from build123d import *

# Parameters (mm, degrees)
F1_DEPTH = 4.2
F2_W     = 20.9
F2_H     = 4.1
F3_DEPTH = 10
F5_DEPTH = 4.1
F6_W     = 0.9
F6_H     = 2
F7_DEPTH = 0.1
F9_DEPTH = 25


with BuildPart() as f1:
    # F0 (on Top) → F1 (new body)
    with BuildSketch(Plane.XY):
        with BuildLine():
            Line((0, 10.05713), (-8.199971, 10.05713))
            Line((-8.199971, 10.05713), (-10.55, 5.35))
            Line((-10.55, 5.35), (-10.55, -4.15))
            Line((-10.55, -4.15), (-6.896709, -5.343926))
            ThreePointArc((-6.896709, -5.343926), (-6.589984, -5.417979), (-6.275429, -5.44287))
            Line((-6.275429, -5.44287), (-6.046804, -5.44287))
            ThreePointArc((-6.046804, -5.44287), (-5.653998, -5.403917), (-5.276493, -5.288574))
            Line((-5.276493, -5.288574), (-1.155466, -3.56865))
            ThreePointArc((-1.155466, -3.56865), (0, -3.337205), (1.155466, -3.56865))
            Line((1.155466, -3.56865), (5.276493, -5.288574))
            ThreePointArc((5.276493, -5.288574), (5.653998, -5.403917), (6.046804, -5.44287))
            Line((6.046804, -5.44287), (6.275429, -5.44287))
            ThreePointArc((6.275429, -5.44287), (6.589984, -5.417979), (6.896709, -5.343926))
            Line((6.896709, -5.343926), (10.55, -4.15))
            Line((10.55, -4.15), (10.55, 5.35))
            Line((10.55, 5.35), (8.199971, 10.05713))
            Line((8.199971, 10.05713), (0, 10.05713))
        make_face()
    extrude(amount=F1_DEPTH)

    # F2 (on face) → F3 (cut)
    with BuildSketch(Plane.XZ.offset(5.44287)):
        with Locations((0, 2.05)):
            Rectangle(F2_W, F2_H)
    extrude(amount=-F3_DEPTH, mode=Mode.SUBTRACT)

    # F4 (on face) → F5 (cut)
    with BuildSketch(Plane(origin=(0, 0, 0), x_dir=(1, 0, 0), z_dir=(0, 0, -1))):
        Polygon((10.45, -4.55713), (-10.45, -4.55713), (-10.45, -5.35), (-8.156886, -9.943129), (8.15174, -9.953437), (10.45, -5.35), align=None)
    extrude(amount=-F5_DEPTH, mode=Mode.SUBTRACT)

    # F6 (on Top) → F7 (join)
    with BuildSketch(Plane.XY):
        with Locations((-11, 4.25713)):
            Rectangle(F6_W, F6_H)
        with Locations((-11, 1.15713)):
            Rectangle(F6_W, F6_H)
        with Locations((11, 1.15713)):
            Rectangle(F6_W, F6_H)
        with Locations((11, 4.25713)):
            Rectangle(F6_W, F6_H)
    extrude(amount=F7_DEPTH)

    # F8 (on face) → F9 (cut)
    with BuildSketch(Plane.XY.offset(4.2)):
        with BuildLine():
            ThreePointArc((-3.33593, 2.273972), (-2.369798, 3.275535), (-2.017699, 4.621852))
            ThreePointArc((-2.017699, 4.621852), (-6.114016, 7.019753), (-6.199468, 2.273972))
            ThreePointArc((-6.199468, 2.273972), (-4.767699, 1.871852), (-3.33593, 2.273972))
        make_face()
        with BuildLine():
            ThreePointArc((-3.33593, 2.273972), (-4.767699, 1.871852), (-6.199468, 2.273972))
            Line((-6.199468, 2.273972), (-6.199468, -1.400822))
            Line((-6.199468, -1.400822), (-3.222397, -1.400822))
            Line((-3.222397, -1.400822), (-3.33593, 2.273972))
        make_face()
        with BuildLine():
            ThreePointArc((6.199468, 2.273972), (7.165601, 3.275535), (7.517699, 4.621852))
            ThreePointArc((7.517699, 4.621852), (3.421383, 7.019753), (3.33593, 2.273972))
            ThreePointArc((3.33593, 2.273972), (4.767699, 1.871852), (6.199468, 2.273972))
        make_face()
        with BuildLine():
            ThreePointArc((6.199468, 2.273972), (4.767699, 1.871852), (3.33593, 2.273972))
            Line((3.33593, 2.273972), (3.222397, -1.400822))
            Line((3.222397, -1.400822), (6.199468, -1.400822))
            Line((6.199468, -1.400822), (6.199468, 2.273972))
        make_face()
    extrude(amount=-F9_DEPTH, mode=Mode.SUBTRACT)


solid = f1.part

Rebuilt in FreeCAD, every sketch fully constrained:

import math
import FreeCAD as App
import Part
import Sketcher

V = App.Vector


def add_polygon(sketch, points):
    """Adds a closed chain of lines whose ends are joined by coincident constraints."""
    first, n = sketch.GeometryCount, len(points)
    for a, b in zip(points, points[1:] + points[:1]):
        sketch.addGeometry(Part.LineSegment(App.Vector(*a, 0), App.Vector(*b, 0)), False)
    for i in range(n):
        sketch.addConstraint(Sketcher.Constraint("Coincident", first + i, 2, first + (i + 1) % n, 1))

doc = App.newDocument("Part")
params = doc.addObject("Spreadsheet::Sheet", "Params")
for row, (alias, value) in enumerate([
    ("sketch1_height", "9.5 mm"),
    ("pad1_length", "4.2 mm"),
    ("sketch2_width", "20.9 mm"),
    ("sketch2_height", "4.1 mm"),
    ("pocket1_length", "10 mm"),
    ("sketch3_width", "20.9 mm"),
    ("pocket2_length", "4.1 mm"),
    ("sketch4_height", "2 mm"),
    ("sketch4_width", "0.9 mm"),
    ("pad2_length", "0.1 mm"),
    ("sketch5_radius", "2.75 mm"),
    ("pocket3_length", "25 mm"),
], start=1):
    params.set(f"A{row}", alias)
    params.set(f"B{row}", "=" + value)
    params.setAlias(f"B{row}", alias)

body = doc.addObject("PartDesign::Body", "Body")

# Sketch on XY plane
sketch1 = body.newObject("Sketcher::SketchObject", "Sketch")
sketch1.AttachmentSupport = (doc.getObject("XY_Plane"), [""])
sketch1.MapMode = "FlatFace"
sketch1.addGeometry([
    Part.LineSegment(V(-8.2, 10.06, 0), V(-10.55, 5.35, 0)),  # 0
    Part.LineSegment(V(-10.55, 5.35, 0), V(-10.55, -4.15, 0)),  # 1
    Part.LineSegment(V(-10.55, -4.15, 0), V(-6.9, -5.34, 0)),  # 2
    Part.ArcOfCircle(Part.Circle(V(-6.28, -3.44, 0), V(0, 0, 1), 2), math.radians(-108.1), math.radians(-90)),  # 3
    Part.LineSegment(V(-6.28, -5.44, 0), V(-6.05, -5.44, 0)),  # 4
    Part.ArcOfCircle(Part.Circle(V(-6.05, -3.44, 0), V(0, 0, 1), 2), math.radians(-90), math.radians(-67)),  # 5
    Part.LineSegment(V(-5.28, -5.29, 0), V(-1.16, -3.57, 0)),  # 6
    Part.ArcOfCircle(Part.Circle(V(0, -6.34, 0), V(0, 0, 1), 3), math.radians(67), math.radians(113)),  # 7
    Part.LineSegment(V(1.16, -3.57, 0), V(5.28, -5.29, 0)),  # 8
    Part.ArcOfCircle(Part.Circle(V(6.05, -3.44, 0), V(0, 0, 1), 2), math.radians(-113), math.radians(-90)),  # 9
    Part.LineSegment(V(6.05, -5.44, 0), V(6.28, -5.44, 0)),  # 10
    Part.ArcOfCircle(Part.Circle(V(6.28, -3.44, 0), V(0, 0, 1), 2), math.radians(-90), math.radians(-71.9)),  # 11
    Part.LineSegment(V(6.9, -5.34, 0), V(10.55, -4.15, 0)),  # 12
    Part.LineSegment(V(10.55, -4.15, 0), V(10.55, 5.35, 0)),  # 13
    Part.LineSegment(V(10.55, 5.35, 0), V(8.2, 10.06, 0)),  # 14
    Part.LineSegment(V(8.2, 10.06, 0), V(-8.2, 10.06, 0)),  # 15
], False)
sketch1.addConstraint([
    Sketcher.Constraint("Coincident", 0, 2, 1, 1),
    Sketcher.Constraint("Coincident", 1, 2, 2, 1),
    Sketcher.Constraint("Coincident", 2, 2, 3, 1),
    Sketcher.Constraint("Tangent", 3, 2, 4, 1),
    Sketcher.Constraint("Tangent", 4, 2, 5, 1),
    Sketcher.Constraint("Tangent", 5, 2, 6, 1),
    Sketcher.Constraint("Tangent", 6, 2, 7, 2),
    Sketcher.Constraint("Tangent", 7, 1, 8, 1),
    Sketcher.Constraint("Tangent", 8, 2, 9, 1),
    Sketcher.Constraint("Tangent", 9, 2, 10, 1),
    Sketcher.Constraint("Tangent", 10, 2, 11, 1),
    Sketcher.Constraint("Coincident", 11, 2, 12, 1),
    Sketcher.Constraint("Coincident", 12, 2, 13, 1),
    Sketcher.Constraint("Coincident", 13, 2, 14, 1),
    Sketcher.Constraint("Coincident", 14, 2, 15, 1),
    Sketcher.Constraint("Coincident", 15, 2, 0, 1),
    Sketcher.Constraint("Vertical", 1),
    Sketcher.Constraint("Horizontal", 4),
    Sketcher.Constraint("Horizontal", 10),
    Sketcher.Constraint("Vertical", 13),
    Sketcher.Constraint("Horizontal", 15),
    Sketcher.Constraint("Equal", 5, 9),
    Sketcher.Constraint("Equal", 3, 11),
    Sketcher.Constraint("Symmetric", 5, 3, 9, 3, -2),
    Sketcher.Constraint("Symmetric", 2, 2, 11, 2, -2),
    Sketcher.Constraint("Symmetric", 1, 2, 12, 2, -2),
    Sketcher.Constraint("PointOnObject", 7, 3, -2),
    Sketcher.Constraint("Horizontal", 0, 2, 13, 2),
    Sketcher.Constraint("Equal", 0, 14),
    Sketcher.Constraint("DistanceY", 1, 2, 1, 1, 9.5),
    Sketcher.Constraint("DistanceX", 0, 2, -1, 1, 10.55),
    Sketcher.Constraint("DistanceY", -1, 1, 0, 2, 5.35),
    Sketcher.Constraint("Radius", 3, 2.00002),
    Sketcher.Constraint("Radius", 5, 1.999991),
    Sketcher.Constraint("Radius", 7, 2.999997),
    Sketcher.Constraint("DistanceX", 15, 2, 15, 1, 16.399942),
    Sketcher.Constraint("DistanceX", 5, 3, -1, 1, 6.046801),
    Sketcher.Constraint("DistanceY", 7, 3, -1, 1, 6.337202),
    Sketcher.Constraint("DistanceY", 6, 2, 3, 3, 0.1258),
    Sketcher.Constraint("Distance", 0, 5.261151),
    Sketcher.Constraint("DistanceX", 4, 1, 4, 2, 0.228625),
    Sketcher.Constraint("DistanceX", 2, 2, -1, 1, 6.896709),
])
sketch1.setExpression("Constraints[29]", "Params.sketch1_height")
pad1 = body.newObject("PartDesign::Pad", "Pad")
pad1.Profile = sketch1
pad1.setExpression("Length", "Params.pad1_length")

# Sketch on XZ plane
sketch2 = body.newObject("Sketcher::SketchObject", "Sketch001")
sketch2.AttachmentSupport = (doc.getObject("XZ_Plane"), [""])
sketch2.MapMode = "FlatFace"
sketch2.AttachmentOffset = App.Placement(V(0, 0, 5.44287), App.Rotation())
add_polygon(sketch2, [(-10.4, 4.1), (-10.4, 0), (10.4, 0), (10.4, 4.1)])  # lines 0-3
sketch2.addConstraint([
    Sketcher.Constraint("Vertical", 0),
    Sketcher.Constraint("Horizontal", 1),
    Sketcher.Constraint("Vertical", 2),
    Sketcher.Constraint("Horizontal", 3),
    Sketcher.Constraint("Symmetric", 0, 2, 1, 2, -1, 1),
    Sketcher.Constraint("DistanceX", 1, 1, 1, 2, 20.9),
    Sketcher.Constraint("DistanceY", 0, 2, 0, 1, 4.1),
])
sketch2.setExpression("Constraints[9]", "Params.sketch2_width")
sketch2.setExpression("Constraints[10]", "Params.sketch2_height")
pocket1 = body.newObject("PartDesign::Pocket", "Pocket")
pocket1.Profile = sketch2
pocket1.setExpression("Length", "Params.pocket1_length")

# Sketch on XY plane
sketch3 = body.newObject("Sketcher::SketchObject", "Sketch002")
sketch3.AttachmentSupport = (doc.getObject("XY_Plane"), [""])
sketch3.MapMode = "FlatFace"
add_polygon(sketch3, [(10.4, 4.6), (-10.4, 4.6), (-10.4, 5.3), (-8.2, 9.9), (8.2, 10), (10.4, 5.3)])  # lines 0-5
sketch3.addConstraint([
    Sketcher.Constraint("Horizontal", 0),
    Sketcher.Constraint("Vertical", 1),
    Sketcher.Constraint("Vertical", 5),
    Sketcher.Constraint("Symmetric", 1, 2, 4, 2, -2),
    Sketcher.Constraint("DistanceX", 0, 2, 0, 1, 20.9),
    Sketcher.Constraint("DistanceY", -1, 1, 1, 2, 5.35),
    Sketcher.Constraint("DistanceY", 0, 2, 2, 2, 5.385999),
    Sketcher.Constraint("DistanceY", 1, 1, 1, 2, 0.79287),
    Sketcher.Constraint("Distance", 3, 16.308629),
    Sketcher.Constraint("DistanceX", -1, 1, 3, 2, 8.15174),
    Sketcher.Constraint("Distance", 4, 5.145253),
])
sketch3.setExpression("Constraints[10]", "Params.sketch3_width")
pocket2 = body.newObject("PartDesign::Pocket", "Pocket001")
pocket2.Profile = sketch3
pocket2.setExpression("Length", "Params.pocket2_length")
pocket2.Reversed = True

# Sketch on XY plane
sketch4 = body.newObject("Sketcher::SketchObject", "Sketch003")
sketch4.AttachmentSupport = (doc.getObject("XY_Plane"), [""])
sketch4.MapMode = "FlatFace"
add_polygon(sketch4, [(-11.4, 5.3), (-11.4, 3.3), (-10.6, 3.3), (-10.6, 5.3)])  # lines 0-3
add_polygon(sketch4, [(-11.4, 2.2), (-11.4, 0.2), (-10.6, 0.2), (-10.6, 2.2)])  # lines 4-7
add_polygon(sketch4, [(10.6, 2.2), (10.6, 0.2), (11.4, 0.2), (11.4, 2.2)])  # lines 8-11
add_polygon(sketch4, [(10.6, 5.3), (10.6, 3.3), (11.4, 3.3), (11.4, 5.3)])  # lines 12-15
sketch4.addConstraint([
    Sketcher.Constraint("Vertical", 0),
    Sketcher.Constraint("Horizontal", 1),
    Sketcher.Constraint("Vertical", 2),
    Sketcher.Constraint("Horizontal", 3),
    Sketcher.Constraint("Vertical", 4),
    Sketcher.Constraint("Horizontal", 5),
    Sketcher.Constraint("Vertical", 6),
    Sketcher.Constraint("Horizontal", 7),
    Sketcher.Constraint("Vertical", 8),
    Sketcher.Constraint("Horizontal", 9),
    Sketcher.Constraint("Vertical", 10),
    Sketcher.Constraint("Horizontal", 11),
    Sketcher.Constraint("Vertical", 12),
    Sketcher.Constraint("Horizontal", 13),
    Sketcher.Constraint("Vertical", 14),
    Sketcher.Constraint("Horizontal", 15),
    Sketcher.Constraint("Symmetric", 5, 2, 8, 2, -2),
    Sketcher.Constraint("Symmetric", 7, 2, 10, 2, -2),
    Sketcher.Constraint("Symmetric", 1, 2, 12, 2, -2),
    Sketcher.Constraint("Symmetric", 3, 2, 14, 2, -2),
    Sketcher.Constraint("Vertical", 3, 2, 4, 2),
    Sketcher.Constraint("Vertical", 2, 2, 5, 2),
    Sketcher.Constraint("Equal", 2, 4),
    Sketcher.Constraint("DistanceY", 0, 2, 0, 1, 2.0),
    Sketcher.Constraint("DistanceX", 1, 1, 1, 2, 0.9),
    Sketcher.Constraint("DistanceX", 4, 2, 8, 2, 22.0),
    Sketcher.Constraint("DistanceY", 4, 2, 0, 2, 3.1),
    Sketcher.Constraint("DistanceY", -1, 1, 0, 2, 3.25713),
])
sketch4.setExpression("Constraints[39]", "Params.sketch4_height")
sketch4.setExpression("Constraints[40]", "Params.sketch4_width")
pad2 = body.newObject("PartDesign::Pad", "Pad001")
pad2.Profile = sketch4
pad2.setExpression("Length", "Params.pad2_length")

# Sketch on XY plane
sketch5 = body.newObject("Sketcher::SketchObject", "Sketch004")
sketch5.AttachmentSupport = (doc.getObject("XY_Plane"), [""])
sketch5.MapMode = "FlatFace"
sketch5.AttachmentOffset = App.Placement(V(0, 0, 4.2), App.Rotation())
sketch5.addGeometry([
    Part.ArcOfCircle(Part.Circle(V(-4.8, 4.6, 0), V(0, 0, 1), 2.8), math.radians(-59), math.radians(0)),  # 0
    Part.ArcOfCircle(Part.Circle(V(-4.8, 4.6, 0), V(0, 0, 1), 2.8), math.radians(0), math.radians(239)),  # 1
    Part.LineSegment(V(-6.2, 2.3, 0), V(-6.2, -1.4, 0)),  # 2
    Part.LineSegment(V(-6.2, -1.4, 0), V(-3.2, -1.4, 0)),  # 3
    Part.LineSegment(V(-3.2, -1.4, 0), V(-3.3, 2.3, 0)),  # 4
    Part.ArcOfCircle(Part.Circle(V(4.8, 4.6, 0), V(0, 0, 1), 2.7), math.radians(-59), math.radians(0)),  # 5
    Part.ArcOfCircle(Part.Circle(V(4.8, 4.6, 0), V(0, 0, 1), 2.7), math.radians(0), math.radians(239)),  # 6
    Part.LineSegment(V(3.3, 2.3, 0), V(3.2, -1.4, 0)),  # 7
    Part.LineSegment(V(3.2, -1.4, 0), V(6.2, -1.4, 0)),  # 8
    Part.LineSegment(V(6.2, -1.4, 0), V(6.2, 2.3, 0)),  # 9
], False)
sketch5.addConstraint([
    Sketcher.Constraint("Tangent", 0, 2, 1, 1),
    Sketcher.Constraint("Coincident", 1, 2, 2, 1),
    Sketcher.Constraint("Coincident", 2, 2, 3, 1),
    Sketcher.Constraint("Coincident", 3, 2, 4, 1),
    Sketcher.Constraint("Coincident", 4, 2, 0, 1),
    Sketcher.Constraint("Tangent", 5, 2, 6, 1),
    Sketcher.Constraint("Coincident", 6, 2, 7, 1),
    Sketcher.Constraint("Coincident", 7, 2, 8, 1),
    Sketcher.Constraint("Coincident", 8, 2, 9, 1),
    Sketcher.Constraint("Coincident", 9, 2, 5, 1),
    Sketcher.Constraint("Vertical", 2),
    Sketcher.Constraint("Horizontal", 3),
    Sketcher.Constraint("Horizontal", 8),
    Sketcher.Constraint("Vertical", 9),
    Sketcher.Constraint("Equal", 1, 6),
    Sketcher.Constraint("Symmetric", 0, 3, 5, 3, -2),
    Sketcher.Constraint("Symmetric", 4, 2, 6, 2, -2),
    Sketcher.Constraint("Symmetric", 3, 2, 7, 2, -2),
    Sketcher.Constraint("Symmetric", 1, 2, 9, 2, -2),
    Sketcher.Constraint("Horizontal", 6, 3, 0, 2),
    Sketcher.Constraint("Horizontal", 1, 2, 4, 2),
    Sketcher.Constraint("Horizontal", 0, 2, 5, 2),
    Sketcher.Constraint("Radius", 1, 2.75),
    Sketcher.Constraint("DistanceX", 3, 1, 3, 2, 2.977071),
    Sketcher.Constraint("DistanceX", 1, 3, -1, 1, 4.767699),
    Sketcher.Constraint("DistanceX", 7, 2, 5, 2, 4.295302),
    Sketcher.Constraint("DistanceY", 2, 2, 2, 1, 3.674794),
    Sketcher.Constraint("DistanceY", -1, 1, 1, 3, 4.621852),
])
sketch5.setExpression("Constraints[22]", "Params.sketch5_radius")
pocket3 = body.newObject("PartDesign::Pocket", "Pocket002")
pocket3.Profile = sketch5
pocket3.setExpression("Length", "Params.pocket3_length")

doc.recompute()
